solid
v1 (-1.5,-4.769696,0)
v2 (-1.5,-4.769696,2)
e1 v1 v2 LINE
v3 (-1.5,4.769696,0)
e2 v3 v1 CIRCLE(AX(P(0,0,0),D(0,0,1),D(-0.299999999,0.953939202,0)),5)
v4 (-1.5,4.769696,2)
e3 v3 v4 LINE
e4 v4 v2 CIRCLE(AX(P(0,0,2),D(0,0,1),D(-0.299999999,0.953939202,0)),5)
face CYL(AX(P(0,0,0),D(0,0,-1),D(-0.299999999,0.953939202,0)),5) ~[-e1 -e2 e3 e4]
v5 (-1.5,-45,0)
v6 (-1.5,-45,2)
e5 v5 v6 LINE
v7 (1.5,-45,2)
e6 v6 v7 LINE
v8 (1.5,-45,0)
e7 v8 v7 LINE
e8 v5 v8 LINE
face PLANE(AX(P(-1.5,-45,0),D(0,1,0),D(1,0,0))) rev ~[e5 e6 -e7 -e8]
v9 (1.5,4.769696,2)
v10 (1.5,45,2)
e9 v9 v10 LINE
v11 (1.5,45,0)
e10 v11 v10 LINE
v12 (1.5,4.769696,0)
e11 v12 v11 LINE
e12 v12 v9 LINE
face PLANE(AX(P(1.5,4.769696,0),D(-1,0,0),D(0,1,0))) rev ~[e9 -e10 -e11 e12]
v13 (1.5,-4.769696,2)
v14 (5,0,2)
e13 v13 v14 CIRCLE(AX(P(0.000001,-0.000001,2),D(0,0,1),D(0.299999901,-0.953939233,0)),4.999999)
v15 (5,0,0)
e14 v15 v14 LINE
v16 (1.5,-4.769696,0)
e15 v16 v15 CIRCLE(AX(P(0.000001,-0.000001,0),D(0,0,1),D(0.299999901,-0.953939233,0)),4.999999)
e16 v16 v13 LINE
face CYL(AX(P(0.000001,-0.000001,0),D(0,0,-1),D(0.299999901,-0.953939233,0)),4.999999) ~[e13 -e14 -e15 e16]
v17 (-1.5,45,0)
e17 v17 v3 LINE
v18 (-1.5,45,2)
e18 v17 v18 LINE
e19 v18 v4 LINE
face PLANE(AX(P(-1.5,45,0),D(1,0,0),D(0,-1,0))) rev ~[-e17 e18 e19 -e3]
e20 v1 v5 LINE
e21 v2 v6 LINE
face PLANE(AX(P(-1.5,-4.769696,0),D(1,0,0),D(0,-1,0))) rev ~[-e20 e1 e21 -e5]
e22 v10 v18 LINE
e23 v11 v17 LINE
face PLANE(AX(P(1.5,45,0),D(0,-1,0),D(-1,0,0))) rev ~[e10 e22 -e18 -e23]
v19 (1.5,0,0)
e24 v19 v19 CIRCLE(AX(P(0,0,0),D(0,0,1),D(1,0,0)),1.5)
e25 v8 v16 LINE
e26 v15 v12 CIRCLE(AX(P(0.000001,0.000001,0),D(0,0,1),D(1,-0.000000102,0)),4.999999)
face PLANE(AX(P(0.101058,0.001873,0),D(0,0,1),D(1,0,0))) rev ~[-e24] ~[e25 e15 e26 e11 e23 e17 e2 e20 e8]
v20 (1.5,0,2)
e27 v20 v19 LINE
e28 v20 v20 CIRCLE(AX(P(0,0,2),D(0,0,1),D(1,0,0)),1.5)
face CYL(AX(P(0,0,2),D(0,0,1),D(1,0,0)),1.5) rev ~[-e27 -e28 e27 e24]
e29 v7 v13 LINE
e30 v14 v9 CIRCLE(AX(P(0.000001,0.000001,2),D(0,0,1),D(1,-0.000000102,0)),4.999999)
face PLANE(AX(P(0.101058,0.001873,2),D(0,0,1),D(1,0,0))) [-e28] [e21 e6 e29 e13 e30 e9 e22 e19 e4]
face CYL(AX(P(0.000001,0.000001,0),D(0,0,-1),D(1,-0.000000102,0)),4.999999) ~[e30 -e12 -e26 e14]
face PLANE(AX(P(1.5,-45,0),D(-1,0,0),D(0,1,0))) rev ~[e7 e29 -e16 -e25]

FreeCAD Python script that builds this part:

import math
import FreeCAD as App
import Part
import Sketcher
Q = App.Units.Quantity

doc = App.newDocument("Part")
body = doc.addObject("PartDesign::Body", "Body")

# Sketch on XY plane
sketch1 = doc.addObject("Sketcher::SketchObject", "Sketch")
body.addObject(sketch1)
sketch1.AttachmentSupport = (doc.XY_Plane, [""])
sketch1.MapMode = "FlatFace"
sketch1.addGeometry(Part.ArcOfCircle(Part.Circle(App.Vector(0, 0, 0), App.Vector(0, 0, 1), 5), math.radians(-73), math.radians(0)), False)
sketch1.addGeometry(Part.ArcOfCircle(Part.Circle(App.Vector(0, 0, 0), App.Vector(0, 0, 1), 5), math.radians(0), math.radians(73)), False)
sketch1.addGeometry(Part.LineSegment(App.Vector(1.5, 4.8, 0), App.Vector(1.5, 45, 0)), False)
sketch1.addGeometry(Part.LineSegment(App.Vector(1.5, 45, 0), App.Vector(-1.5, 45, 0)), False)
sketch1.addGeometry(Part.LineSegment(App.Vector(-1.5, 45, 0), App.Vector(-1.5, 4.8, 0)), False)
sketch1.addGeometry(Part.ArcOfCircle(Part.Circle(App.Vector(0, 0, 0), App.Vector(0, 0, 1), 5), math.radians(107), math.radians(253)), False)
sketch1.addGeometry(Part.LineSegment(App.Vector(-1.5, -4.8, 0), App.Vector(-1.5, -45, 0)), False)
sketch1.addGeometry(Part.LineSegment(App.Vector(-1.5, -45, 0), App.Vector(1.5, -45, 0)), False)
sketch1.addGeometry(Part.LineSegment(App.Vector(1.5, -45, 0), App.Vector(1.5, -4.8, 0)), False)
sketch1.addConstraint(Sketcher.Constraint("Tangent", 0, 2, 1, 1))
sketch1.addConstraint(Sketcher.Constraint("Coincident", 1, 2, 2, 1))
sketch1.addConstraint(Sketcher.Constraint("Coincident", 2, 2, 3, 1))
sketch1.addConstraint(Sketcher.Constraint("Coincident", 3, 2, 4, 1))
sketch1.addConstraint(Sketcher.Constraint("Coincident", 4, 2, 5, 1))
sketch1.addConstraint(Sketcher.Constraint("Coincident", 5, 2, 6, 1))
sketch1.addConstraint(Sketcher.Constraint("Coincident", 6, 2, 7, 1))
sketch1.addConstraint(Sketcher.Constraint("Coincident", 7, 2, 8, 1))
sketch1.addConstraint(Sketcher.Constraint("Coincident", 8, 2, 0, 1))
sketch1.addConstraint(Sketcher.Constraint("Vertical", 2))
sketch1.addConstraint(Sketcher.Constraint("Horizontal", 3))
sketch1.addConstraint(Sketcher.Constraint("Vertical", 4))
sketch1.addConstraint(Sketcher.Constraint("Vertical", 6))
sketch1.addConstraint(Sketcher.Constraint("Horizontal", 7))
sketch1.addConstraint(Sketcher.Constraint("Vertical", 8))
sketch1.addConstraint(Sketcher.Constraint("Coincident", 0, 3, -1, 1))
sketch1.addConstraint(Sketcher.Constraint("Coincident", 5, 3, -1, 1))
sketch1.addConstraint(Sketcher.Constraint("Equal", 0, 1))
sketch1.addConstraint(Sketcher.Constraint("Equal", 1, 5))
sketch1.addConstraint(Sketcher.Constraint("Symmetric", 2, 2, 6, 2, -1, 1))
sketch1.addConstraint(Sketcher.Constraint("PointOnObject", 0, 2, -1))
sketch1.addConstraint(Sketcher.Constraint("Horizontal", 1, 2, 4, 2))
sketch1.addConstraint(Sketcher.Constraint("Horizontal", 5, 2, 8, 2))
sketch1.addConstraint(Sketcher.Constraint("Radius", 0, Q("4.999999 mm")))
sketch1.addConstraint(Sketcher.Constraint("DistanceX", 3, 2, 3, 1, Q("3 mm")))
sketch1.addConstraint(Sketcher.Constraint("DistanceY", -1, 1, 2, 2, Q("45 mm")))
pad1 = doc.addObject("PartDesign::Pad", "Pad")
body.addObject(pad1)
pad1.Profile = sketch1
pad1.Length = 2

# Sketch on XY plane
sketch2 = doc.addObject("Sketcher::SketchObject", "Sketch001")
body.addObject(sketch2)
sketch2.AttachmentSupport = (doc.XY_Plane, [""])
sketch2.MapMode = "FlatFace"
sketch2.AttachmentOffset = App.Placement(App.Vector(0, 0, 2), App.Rotation())
sketch2.addGeometry(Part.Circle(App.Vector(0, 0, 0), App.Vector(0, 0, 1), 1.5), False)
sketch2.addConstraint(Sketcher.Constraint("Coincident", 0, 3, -1, 1))
sketch2.addConstraint(Sketcher.Constraint("Diameter", 0, Q("3 mm")))
pocket1 = doc.addObject("PartDesign::Pocket", "Pocket")
body.addObject(pocket1)
pocket1.Profile = sketch2
pocket1.Length = 25

doc.recompute()
